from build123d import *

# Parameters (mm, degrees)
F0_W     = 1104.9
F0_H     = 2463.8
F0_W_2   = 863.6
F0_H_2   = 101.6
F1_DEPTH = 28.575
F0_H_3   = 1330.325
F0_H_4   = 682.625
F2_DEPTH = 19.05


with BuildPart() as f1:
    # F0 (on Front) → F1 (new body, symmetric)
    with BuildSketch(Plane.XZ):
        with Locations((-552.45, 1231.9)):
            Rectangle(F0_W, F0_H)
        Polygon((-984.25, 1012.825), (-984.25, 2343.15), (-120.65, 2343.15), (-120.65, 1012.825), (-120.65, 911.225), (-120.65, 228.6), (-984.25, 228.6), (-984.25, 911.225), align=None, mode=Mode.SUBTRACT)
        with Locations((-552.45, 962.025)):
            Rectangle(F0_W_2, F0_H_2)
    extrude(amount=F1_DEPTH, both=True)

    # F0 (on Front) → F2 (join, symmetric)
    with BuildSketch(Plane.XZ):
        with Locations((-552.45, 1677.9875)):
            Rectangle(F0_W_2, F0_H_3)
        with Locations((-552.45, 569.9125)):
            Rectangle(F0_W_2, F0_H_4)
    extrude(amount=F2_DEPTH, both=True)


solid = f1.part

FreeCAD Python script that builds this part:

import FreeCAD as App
import Part
import Sketcher
Q = App.Units.Quantity


def add_polygon(sketch, points):
    """Adds a closed chain of lines whose ends are joined by coincident constraints."""
    first, n = sketch.GeometryCount, len(points)
    for a, b in zip(points, points[1:] + points[:1]):
        sketch.addGeometry(Part.LineSegment(App.Vector(*a, 0), App.Vector(*b, 0)), False)
    for i in range(n):
        sketch.addConstraint(Sketcher.Constraint("Coincident", first + i, 2, first + (i + 1) % n, 1))

doc = App.newDocument("Part")
params = doc.addObject("Spreadsheet::Sheet", "Params")
for row, (alias, value) in enumerate([
    ("sketch1_width", "34 in"),
    ("sketch1_height", "97 in"),
    ("sketch1_width2", "43.5 in"),
    ("sketch1_height2", "26.875 in"),
    ("sketch1_height3", "52.375 in"),
    ("pad1_length", "2.25 in"),
    ("sketch2_width", "34 in"),
    ("sketch2_height", "52.375 in"),
    ("sketch2_height2", "26.875 in"),
    ("pad2_length", "1.5 in"),
], start=1):
    params.set(f"A{row}", alias)
    params.set(f"B{row}", "=" + value)
    params.setAlias(f"B{row}", alias)

body = doc.addObject("PartDesign::Body", "Body")

# Sketch on XZ plane
sketch1 = body.newObject("Sketcher::SketchObject", "Sketch")
sketch1.AttachmentSupport = (doc.getObject("XZ_Plane"), [""])
sketch1.MapMode = "FlatFace"
add_polygon(sketch1, [(-1105, 2464), (-1105, 0), (0, 0), (0, 2464)])  # lines 0-3
add_polygon(sketch1, [(-984, 229), (-984, 911), (-121, 911), (-121, 229)])  # lines 4-7
add_polygon(sketch1, [(-984, 1013), (-984, 2343), (-121, 2343), (-121, 1013)])  # lines 8-11
sketch1.addConstraint(Sketcher.Constraint("Vertical", 0))
sketch1.addConstraint(Sketcher.Constraint("Horizontal", 1))
sketch1.addConstraint(Sketcher.Constraint("Vertical", 2))
sketch1.addConstraint(Sketcher.Constraint("Horizontal", 3))
sketch1.addConstraint(Sketcher.Constraint("Vertical", 4))
sketch1.addConstraint(Sketcher.Constraint("Horizontal", 5))
sketch1.addConstraint(Sketcher.Constraint("Vertical", 6))
sketch1.addConstraint(Sketcher.Constraint("Horizontal", 7))
sketch1.addConstraint(Sketcher.Constraint("Vertical", 8))
sketch1.addConstraint(Sketcher.Constraint("Horizontal", 9))
sketch1.addConstraint(Sketcher.Constraint("Vertical", 10))
sketch1.addConstraint(Sketcher.Constraint("Horizontal", 11))
sketch1.addConstraint(Sketcher.Constraint("Coincident", 1, 2, -1, 1))
sketch1.addConstraint(Sketcher.Constraint("Vertical", 7, 2, 8, 2))
sketch1.addConstraint(Sketcher.Constraint("Vertical", 6, 2, 9, 2))
sketch1.addConstraint(Sketcher.Constraint("DistanceX", 5, 1, 5, 2, Q("34 in")))
sketch1.addConstraint(Sketcher.Constraint("DistanceY", 0, 2, 0, 1, Q("97 in")))
sketch1.addConstraint(Sketcher.Constraint("DistanceX", 1, 1, 1, 2, Q("43.5 in")))
sketch1.addConstraint(Sketcher.Constraint("DistanceY", -1, 1, 6, 2, Q("9 in")))
sketch1.addConstraint(Sketcher.Constraint("DistanceY", 5, 2, 10, 2, Q("4 in")))
sketch1.addConstraint(Sketcher.Constraint("DistanceY", 4, 1, 4, 2, Q("26.875 in")))
sketch1.addConstraint(Sketcher.Constraint("DistanceY", 8, 1, 8, 2, Q("52.375 in")))
sketch1.addConstraint(Sketcher.Constraint("DistanceX", 4, 2, -1, 1, Q("38.75 in")))
sketch1.setExpression("Constraints[27]", "Params.sketch1_width")
sketch1.setExpression("Constraints[28]", "Params.sketch1_height")
sketch1.setExpression("Constraints[29]", "Params.sketch1_width2")
sketch1.setExpression("Constraints[32]", "Params.sketch1_height2")
sketch1.setExpression("Constraints[33]", "Params.sketch1_height3")
pad1 = body.newObject("PartDesign::Pad", "Pad")
pad1.Profile = sketch1
pad1.setExpression("Length", "Params.pad1_length")
pad1.Midplane = True

# Sketch on XZ plane
sketch2 = body.newObject("Sketcher::SketchObject", "Sketch001")
sketch2.AttachmentSupport = (doc.getObject("XZ_Plane"), [""])
sketch2.MapMode = "FlatFace"
add_polygon(sketch2, [(-984, 2343), (-984, 1013), (-121, 1013), (-121, 2343)])  # lines 0-3
add_polygon(sketch2, [(-984, 911), (-984, 229), (-121, 229), (-121, 911)])  # lines 4-7
sketch2.addConstraint(Sketcher.Constraint("Vertical", 0))
sketch2.addConstraint(Sketcher.Constraint("Horizontal", 1))
sketch2.addConstraint(Sketcher.Constraint("Vertical", 2))
sketch2.addConstraint(Sketcher.Constraint("Horizontal", 3))
sketch2.addConstraint(Sketcher.Constraint("Vertical", 4))
sketch2.addConstraint(Sketcher.Constraint("Horizontal", 5))
sketch2.addConstraint(Sketcher.Constraint("Vertical", 6))
sketch2.addConstraint(Sketcher.Constraint("Horizontal", 7))
sketch2.addConstraint(Sketcher.Constraint("Vertical", 3, 2, 4, 2))
sketch2.addConstraint(Sketcher.Constraint("Vertical", 2, 2, 5, 2))
sketch2.addConstraint(Sketcher.Constraint("DistanceX", 1, 1, 1, 2, Q("34 in")))
sketch2.addConstraint(Sketcher.Constraint("DistanceY", -1, 1, 4, 2, Q("9 in")))
sketch2.addConstraint(Sketcher.Constraint("DistanceY", 6, 2, 1, 2, Q("4 in")))
sketch2.addConstraint(Sketcher.Constraint("DistanceY", 0, 2, 0, 1, Q("52.375 in")))
sketch2.addConstraint(Sketcher.Constraint("DistanceY", 4, 2, 4, 1, Q("26.875 in")))
sketch2.addConstraint(Sketcher.Constraint("DistanceX", 0, 2, -1, 1, Q("38.75 in")))
sketch2.setExpression("Constraints[18]", "Params.sketch2_width")
sketch2.setExpression("Constraints[21]", "Params.sketch2_height")
sketch2.setExpression("Constraints[22]", "Params.sketch2_height2")
pad2 = body.newObject("PartDesign::Pad", "Pad001")
pad2.Profile = sketch2
pad2.setExpression("Length", "Params.pad2_length")
pad2.Midplane = True

doc.recompute()
